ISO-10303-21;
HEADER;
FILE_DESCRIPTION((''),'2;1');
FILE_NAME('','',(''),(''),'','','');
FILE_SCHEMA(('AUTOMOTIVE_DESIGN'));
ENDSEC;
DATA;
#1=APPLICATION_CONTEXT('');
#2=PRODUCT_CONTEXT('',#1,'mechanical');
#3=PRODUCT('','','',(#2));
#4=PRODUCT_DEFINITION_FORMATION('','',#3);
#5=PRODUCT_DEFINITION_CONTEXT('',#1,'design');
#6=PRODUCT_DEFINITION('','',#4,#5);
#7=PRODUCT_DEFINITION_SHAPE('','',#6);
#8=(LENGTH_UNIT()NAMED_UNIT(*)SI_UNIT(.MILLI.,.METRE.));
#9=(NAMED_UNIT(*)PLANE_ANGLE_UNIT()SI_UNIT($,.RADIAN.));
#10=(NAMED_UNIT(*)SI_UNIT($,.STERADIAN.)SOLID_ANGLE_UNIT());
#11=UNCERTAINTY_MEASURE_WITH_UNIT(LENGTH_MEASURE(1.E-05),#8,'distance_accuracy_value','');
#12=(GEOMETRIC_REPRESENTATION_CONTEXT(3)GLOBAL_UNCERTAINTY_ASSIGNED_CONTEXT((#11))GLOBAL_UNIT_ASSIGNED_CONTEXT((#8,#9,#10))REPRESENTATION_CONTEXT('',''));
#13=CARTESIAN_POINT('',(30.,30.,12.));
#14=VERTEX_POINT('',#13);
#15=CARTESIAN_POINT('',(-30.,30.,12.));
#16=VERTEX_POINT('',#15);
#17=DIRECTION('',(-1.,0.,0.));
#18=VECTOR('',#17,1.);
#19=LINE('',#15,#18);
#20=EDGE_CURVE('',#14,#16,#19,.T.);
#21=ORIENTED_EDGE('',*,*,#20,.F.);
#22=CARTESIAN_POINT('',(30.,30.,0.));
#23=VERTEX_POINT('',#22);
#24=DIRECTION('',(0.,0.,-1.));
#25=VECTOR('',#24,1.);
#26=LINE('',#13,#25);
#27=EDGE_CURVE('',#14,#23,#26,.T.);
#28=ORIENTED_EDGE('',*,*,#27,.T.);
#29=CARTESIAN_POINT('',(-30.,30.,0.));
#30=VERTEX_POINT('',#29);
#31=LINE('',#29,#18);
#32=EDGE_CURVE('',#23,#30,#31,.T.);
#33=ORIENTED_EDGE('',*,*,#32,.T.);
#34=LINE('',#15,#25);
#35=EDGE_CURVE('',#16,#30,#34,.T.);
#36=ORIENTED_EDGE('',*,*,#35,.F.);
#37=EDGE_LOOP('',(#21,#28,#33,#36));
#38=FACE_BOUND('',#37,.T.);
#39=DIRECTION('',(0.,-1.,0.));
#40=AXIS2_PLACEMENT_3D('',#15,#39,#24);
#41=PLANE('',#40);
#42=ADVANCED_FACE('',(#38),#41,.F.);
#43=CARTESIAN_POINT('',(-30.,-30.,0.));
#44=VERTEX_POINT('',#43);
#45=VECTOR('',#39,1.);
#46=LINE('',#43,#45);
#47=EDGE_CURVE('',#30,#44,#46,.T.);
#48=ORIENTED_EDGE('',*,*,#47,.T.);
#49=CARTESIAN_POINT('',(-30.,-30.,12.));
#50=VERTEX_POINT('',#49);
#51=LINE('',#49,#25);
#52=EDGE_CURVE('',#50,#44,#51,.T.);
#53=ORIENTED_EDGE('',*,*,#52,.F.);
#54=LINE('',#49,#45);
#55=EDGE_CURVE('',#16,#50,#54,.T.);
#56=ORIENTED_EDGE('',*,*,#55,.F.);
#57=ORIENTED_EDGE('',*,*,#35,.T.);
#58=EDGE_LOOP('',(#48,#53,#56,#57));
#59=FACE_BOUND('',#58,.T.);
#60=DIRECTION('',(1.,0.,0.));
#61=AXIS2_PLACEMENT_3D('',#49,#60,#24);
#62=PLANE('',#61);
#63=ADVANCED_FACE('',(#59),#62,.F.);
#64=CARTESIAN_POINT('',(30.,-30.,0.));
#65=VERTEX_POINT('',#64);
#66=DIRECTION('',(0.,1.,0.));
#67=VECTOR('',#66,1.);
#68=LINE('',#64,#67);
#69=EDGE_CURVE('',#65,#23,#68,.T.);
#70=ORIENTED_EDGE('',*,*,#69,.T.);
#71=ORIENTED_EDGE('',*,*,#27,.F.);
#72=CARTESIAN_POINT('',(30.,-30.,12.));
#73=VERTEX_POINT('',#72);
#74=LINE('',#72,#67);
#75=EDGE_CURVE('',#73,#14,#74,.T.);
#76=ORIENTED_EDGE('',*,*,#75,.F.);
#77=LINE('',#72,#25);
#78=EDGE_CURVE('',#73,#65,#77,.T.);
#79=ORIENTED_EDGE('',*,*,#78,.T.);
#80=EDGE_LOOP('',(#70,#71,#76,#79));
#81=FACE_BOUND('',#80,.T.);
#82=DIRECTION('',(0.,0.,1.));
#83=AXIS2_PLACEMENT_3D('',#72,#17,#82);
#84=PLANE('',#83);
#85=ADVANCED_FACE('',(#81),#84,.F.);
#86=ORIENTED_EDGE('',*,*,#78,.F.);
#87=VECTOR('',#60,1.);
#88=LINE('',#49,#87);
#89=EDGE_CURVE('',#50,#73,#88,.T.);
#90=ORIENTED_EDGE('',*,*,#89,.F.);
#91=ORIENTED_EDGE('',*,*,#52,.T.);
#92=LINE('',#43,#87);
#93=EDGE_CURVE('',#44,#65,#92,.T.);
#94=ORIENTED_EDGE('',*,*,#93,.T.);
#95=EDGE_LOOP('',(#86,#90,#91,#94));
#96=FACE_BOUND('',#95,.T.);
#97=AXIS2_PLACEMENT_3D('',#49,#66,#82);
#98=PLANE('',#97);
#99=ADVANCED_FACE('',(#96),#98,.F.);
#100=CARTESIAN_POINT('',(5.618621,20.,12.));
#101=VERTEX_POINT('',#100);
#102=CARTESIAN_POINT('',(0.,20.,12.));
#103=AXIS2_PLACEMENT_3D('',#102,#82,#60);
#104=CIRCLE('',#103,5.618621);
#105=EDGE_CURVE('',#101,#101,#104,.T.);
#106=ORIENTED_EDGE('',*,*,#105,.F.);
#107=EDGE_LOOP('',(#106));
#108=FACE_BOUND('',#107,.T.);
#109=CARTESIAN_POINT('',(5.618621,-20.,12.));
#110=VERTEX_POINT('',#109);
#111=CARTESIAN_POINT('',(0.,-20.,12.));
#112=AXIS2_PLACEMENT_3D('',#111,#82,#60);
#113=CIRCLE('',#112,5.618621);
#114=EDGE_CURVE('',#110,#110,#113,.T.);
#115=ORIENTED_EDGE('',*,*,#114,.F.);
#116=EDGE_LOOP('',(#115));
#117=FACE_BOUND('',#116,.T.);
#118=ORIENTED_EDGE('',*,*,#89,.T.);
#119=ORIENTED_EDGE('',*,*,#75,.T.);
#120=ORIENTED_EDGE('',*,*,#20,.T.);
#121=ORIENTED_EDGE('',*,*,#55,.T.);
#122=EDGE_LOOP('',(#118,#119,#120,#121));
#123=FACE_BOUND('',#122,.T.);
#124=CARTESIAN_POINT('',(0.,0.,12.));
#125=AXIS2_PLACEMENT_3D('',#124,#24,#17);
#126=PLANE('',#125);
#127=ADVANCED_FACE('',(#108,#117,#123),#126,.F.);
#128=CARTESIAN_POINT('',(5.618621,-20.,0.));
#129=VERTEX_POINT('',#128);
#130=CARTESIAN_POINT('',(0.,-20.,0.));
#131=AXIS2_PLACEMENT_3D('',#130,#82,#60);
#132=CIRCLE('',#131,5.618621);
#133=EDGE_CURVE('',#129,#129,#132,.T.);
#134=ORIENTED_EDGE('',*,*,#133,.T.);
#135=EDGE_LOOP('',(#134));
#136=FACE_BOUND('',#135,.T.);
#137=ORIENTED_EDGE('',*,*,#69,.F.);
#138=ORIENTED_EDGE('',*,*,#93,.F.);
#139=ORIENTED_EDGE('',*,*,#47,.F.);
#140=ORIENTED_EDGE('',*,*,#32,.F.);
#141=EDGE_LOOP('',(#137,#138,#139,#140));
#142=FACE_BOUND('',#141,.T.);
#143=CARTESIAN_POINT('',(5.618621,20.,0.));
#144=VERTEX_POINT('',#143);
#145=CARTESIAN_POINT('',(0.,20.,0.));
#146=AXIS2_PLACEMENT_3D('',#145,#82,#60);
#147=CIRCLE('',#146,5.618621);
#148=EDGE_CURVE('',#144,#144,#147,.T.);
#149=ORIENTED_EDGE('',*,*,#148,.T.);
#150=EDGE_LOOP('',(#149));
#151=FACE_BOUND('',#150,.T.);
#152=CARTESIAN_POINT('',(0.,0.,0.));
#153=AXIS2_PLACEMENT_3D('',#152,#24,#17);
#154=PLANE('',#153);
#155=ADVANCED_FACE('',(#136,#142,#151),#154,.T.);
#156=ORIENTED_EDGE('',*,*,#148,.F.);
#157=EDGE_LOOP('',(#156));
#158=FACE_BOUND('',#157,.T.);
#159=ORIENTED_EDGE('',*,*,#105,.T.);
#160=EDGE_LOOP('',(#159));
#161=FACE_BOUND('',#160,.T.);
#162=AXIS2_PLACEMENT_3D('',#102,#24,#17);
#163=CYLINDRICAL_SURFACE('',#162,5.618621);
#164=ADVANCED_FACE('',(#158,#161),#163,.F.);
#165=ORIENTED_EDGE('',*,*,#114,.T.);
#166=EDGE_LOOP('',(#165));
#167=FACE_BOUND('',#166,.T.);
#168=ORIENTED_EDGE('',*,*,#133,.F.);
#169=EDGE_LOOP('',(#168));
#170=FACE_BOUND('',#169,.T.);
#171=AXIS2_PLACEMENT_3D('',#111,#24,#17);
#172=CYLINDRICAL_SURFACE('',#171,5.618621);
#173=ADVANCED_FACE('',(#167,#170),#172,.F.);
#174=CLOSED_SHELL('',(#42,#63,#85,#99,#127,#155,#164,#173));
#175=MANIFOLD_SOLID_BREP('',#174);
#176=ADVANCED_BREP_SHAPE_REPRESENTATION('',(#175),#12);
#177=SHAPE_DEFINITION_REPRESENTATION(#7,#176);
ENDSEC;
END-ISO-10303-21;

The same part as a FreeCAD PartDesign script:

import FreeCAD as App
import Part
import Sketcher

V = App.Vector

doc = App.newDocument("Part")
body = doc.addObject("PartDesign::Body", "Body")

sketch1 = body.newObject("Sketcher::SketchObject", "Sketch")
sketch1.AttachmentSupport = (doc.getObject("XY_Plane"), [""])
sketch1.MapMode = "FlatFace"
sketch1.addGeometry(Part.LineSegment(V(-30, 30, 0), V(-30, -30, 0)), False)
sketch1.addGeometry(Part.LineSegment(V(-30, -30, 0), V(30, -30, 0)), False)
sketch1.addGeometry(Part.LineSegment(V(30, -30, 0), V(30, 30, 0)), False)
sketch1.addGeometry(Part.LineSegment(V(30, 30, 0), V(-30, 30, 0)), False)
sketch1.addGeometry(Part.Circle(V(0, -20, 0), V(0, 0, 1), 6), False)
sketch1.addGeometry(Part.Circle(V(0, 20, 0), V(0, 0, 1), 6), False)
sketch1.addConstraint(Sketcher.Constraint("Coincident", 0, 2, 1, 1))
sketch1.addConstraint(Sketcher.Constraint("Coincident", 1, 2, 2, 1))
sketch1.addConstraint(Sketcher.Constraint("Coincident", 2, 2, 3, 1))
sketch1.addConstraint(Sketcher.Constraint("Coincident", 3, 2, 0, 1))
sketch1.addConstraint(Sketcher.Constraint("Vertical", 0))
sketch1.addConstraint(Sketcher.Constraint("Horizontal", 1))
sketch1.addConstraint(Sketcher.Constraint("Vertical", 2))
sketch1.addConstraint(Sketcher.Constraint("Horizontal", 3))
sketch1.addConstraint(Sketcher.Constraint("Equal", 4, 5))
sketch1.addConstraint(Sketcher.Constraint("Symmetric", 4, 3, 5, 3, -1, 1))
sketch1.addConstraint(Sketcher.Constraint("Symmetric", 0, 2, 2, 2, -1, 1))
sketch1.addConstraint(Sketcher.Constraint("PointOnObject", 4, 3, -2))
sketch1.addConstraint(Sketcher.Constraint("Equal", 3, 0))
sketch1.addConstraint(Sketcher.Constraint("DistanceX", 1, 1, 1, 2, 60.0))
sketch1.addConstraint(Sketcher.Constraint("DistanceY", 4, 3, -1, 1, 20.0))
sketch1.addConstraint(Sketcher.Constraint("Diameter", 4, 11.237242))
pad1 = body.newObject("PartDesign::Pad", "Pad")
pad1.Profile = sketch1
pad1.Length = 12

doc.recompute()
